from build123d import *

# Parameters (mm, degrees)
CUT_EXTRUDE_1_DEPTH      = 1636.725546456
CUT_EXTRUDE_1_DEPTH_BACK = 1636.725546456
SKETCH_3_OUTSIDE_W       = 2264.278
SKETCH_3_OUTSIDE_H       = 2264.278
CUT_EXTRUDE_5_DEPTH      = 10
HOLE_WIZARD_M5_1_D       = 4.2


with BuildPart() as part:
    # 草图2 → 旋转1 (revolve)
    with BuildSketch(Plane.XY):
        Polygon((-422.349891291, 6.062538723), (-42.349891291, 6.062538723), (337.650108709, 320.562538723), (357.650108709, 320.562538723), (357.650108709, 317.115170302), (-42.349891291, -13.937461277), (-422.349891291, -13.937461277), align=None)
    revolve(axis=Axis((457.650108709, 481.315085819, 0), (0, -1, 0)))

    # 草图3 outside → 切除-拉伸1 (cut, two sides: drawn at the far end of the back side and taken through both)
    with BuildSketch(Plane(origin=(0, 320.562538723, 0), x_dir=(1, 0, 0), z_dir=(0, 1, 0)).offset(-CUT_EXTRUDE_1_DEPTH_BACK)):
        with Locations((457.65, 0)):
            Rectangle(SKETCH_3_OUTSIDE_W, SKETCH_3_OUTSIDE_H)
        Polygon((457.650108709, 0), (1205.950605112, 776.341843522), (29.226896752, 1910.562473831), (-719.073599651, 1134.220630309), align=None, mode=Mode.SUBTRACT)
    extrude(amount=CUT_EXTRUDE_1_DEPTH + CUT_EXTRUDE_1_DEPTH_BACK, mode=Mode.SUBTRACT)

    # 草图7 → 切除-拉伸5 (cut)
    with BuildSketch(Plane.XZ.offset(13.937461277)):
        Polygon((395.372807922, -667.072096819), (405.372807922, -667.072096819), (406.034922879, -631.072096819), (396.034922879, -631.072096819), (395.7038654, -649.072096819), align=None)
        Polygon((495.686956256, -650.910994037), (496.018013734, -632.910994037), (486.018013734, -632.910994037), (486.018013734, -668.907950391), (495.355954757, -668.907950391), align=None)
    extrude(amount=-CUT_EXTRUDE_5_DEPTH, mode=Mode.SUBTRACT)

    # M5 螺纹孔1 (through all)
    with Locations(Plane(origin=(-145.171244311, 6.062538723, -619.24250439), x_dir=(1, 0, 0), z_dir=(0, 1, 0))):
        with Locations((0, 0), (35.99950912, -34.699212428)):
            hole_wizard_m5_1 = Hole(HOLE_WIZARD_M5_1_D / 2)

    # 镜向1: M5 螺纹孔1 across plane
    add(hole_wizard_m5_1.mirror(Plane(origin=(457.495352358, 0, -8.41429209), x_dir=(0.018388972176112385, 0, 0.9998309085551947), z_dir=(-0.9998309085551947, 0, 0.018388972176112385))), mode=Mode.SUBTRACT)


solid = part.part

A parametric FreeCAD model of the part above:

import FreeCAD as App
import Part
import Sketcher
from FreeCAD import Vector
Q = App.Units.Quantity


def add_polygon(sketch, points):
    """Adds a closed chain of lines whose ends are joined by coincident constraints."""
    first, n = sketch.GeometryCount, len(points)
    for a, b in zip(points, points[1:] + points[:1]):
        sketch.addGeometry(Part.LineSegment(App.Vector(*a, 0), App.Vector(*b, 0)), False)
    for i in range(n):
        sketch.addConstraint(Sketcher.Constraint("Coincident", first + i, 2, first + (i + 1) % n, 1))

doc = App.newDocument("Part")
params = doc.addObject("Spreadsheet::Sheet", "Params")
for row, (alias, value) in enumerate([
    ("sketch1_width", "380 mm"),
    ("sketch1_width2", "20 mm"),
    ("sketch1_height", "334.5 mm"),
    ("revolution_angle", "360 deg"),
    ("sketch3_width", "10 mm"),
    ("pocket2_length", "10 mm"),
    ("sketch4_diameter", "4.2 mm"),
    ("hole_diameter", "4.2 mm"),
], start=1):
    params.set(f"A{row}", alias)
    params.set(f"B{row}", "=" + value)
    params.setAlias(f"B{row}", alias)

body = doc.addObject("PartDesign::Body", "Body")

sketch1 = body.newObject("Sketcher::SketchObject", "Sketch")
sketch1.AttachmentSupport = (doc.getObject("XY_Plane"), [""])
sketch1.MapMode = "FlatFace"
add_polygon(sketch1, [(-42.3, 6.1), (-422.3, 6.1), (-422.3, -13.9), (-42.3, -13.9), (357.7, 317.1), (357.7, 320.6), (337.7, 320.6)])
sketch1.addGeometry(Part.LineSegment(Vector(457.7, 320.6, 0), Vector(457.7, -13.9, 0)), True)
sketch1.addConstraint([
    Sketcher.Constraint("Horizontal", 0),
    Sketcher.Constraint("Vertical", 1),
    Sketcher.Constraint("Horizontal", 2),
    Sketcher.Constraint("Vertical", 4),
    Sketcher.Constraint("Horizontal", 5),
    Sketcher.Constraint("Vertical", 7),
    Sketcher.Constraint("Parallel", 3, 6),
    Sketcher.Constraint("Horizontal", 5, 2, 7, 1),
    Sketcher.Constraint("Horizontal", 2, 2, 7, 2),
    Sketcher.Constraint("Vertical", 2, 2, 6, 2),
    Sketcher.Constraint("Equal", 5, 1),
    Sketcher.Constraint("DistanceX", 0, 2, 0, 1, Q("380 mm")),
    Sketcher.Constraint("DistanceX", 5, 2, 5, 1, Q("20 mm")),
    Sketcher.Constraint("DistanceY", 7, 2, 7, 1, Q("334.5 mm")),
    Sketcher.Constraint("DistanceX", 2, 2, 3, 2, Q("400 mm")),
    Sketcher.Constraint("DistanceX", 4, 2, 7, 1, Q("100 mm")),
    Sketcher.Constraint("DistanceX", 0, 2, -1, 1, Q("422.349891 mm")),
    Sketcher.Constraint("DistanceY", -1, 1, 0, 2, Q("6.062539 mm")),
])
sketch1.setExpression("Constraints[18]", "Params.sketch1_width")
sketch1.setExpression("Constraints[19]", "Params.sketch1_width2")
sketch1.setExpression("Constraints[20]", "Params.sketch1_height")
revolution = body.newObject("PartDesign::Revolution", "Revolution")
revolution.Profile = sketch1
revolution.ReferenceAxis = (sketch1, ["Axis0"])
revolution.setExpression("Angle", "Params.revolution_angle")

sketch2 = body.newObject("Sketcher::SketchObject", "Sketch001")
sketch2.AttachmentSupport = (doc.getObject("XZ_Plane"), [""])
sketch2.MapMode = "FlatFace"
sketch2.AttachmentOffset = App.Placement(Vector(0, 0, -320.562539), App.Rotation())
add_polygon(sketch2, [(-674, -1091), (-674, 1132), (1590, 1132), (1590, -1132), (837, -1132), (1206, -776), (458, 0)])
sketch2.addConstraint([
    Sketcher.Constraint("Vertical", 0),
    Sketcher.Constraint("Horizontal", 1),
    Sketcher.Constraint("Vertical", 2),
    Sketcher.Constraint("Horizontal", 3),
    Sketcher.Constraint("PointOnObject", 5, 2, -1),
    Sketcher.Constraint("Perpendicular", 4, 5),
    Sketcher.Constraint("Perpendicular", 5, 6),
    Sketcher.Constraint("Equal", 1, 2),
    Sketcher.Constraint("DistanceX", 1, 1, 1, 2, Q("2264.278 mm")),
    Sketcher.Constraint("DistanceX", 0, 2, -1, 1, Q("674.489 mm")),
    Sketcher.Constraint("DistanceY", -1, 1, 0, 2, Q("1132.139 mm")),
    Sketcher.Constraint("DistanceY", 0, 1, 0, 2, Q("2223.385419 mm")),
    Sketcher.Constraint("Distance", 6, Q("1572.43687 mm")),
    Sketcher.Constraint("DistanceX", 3, 2, 3, 1, Q("752.968473 mm")),
])
pocket1 = body.newObject("PartDesign::Pocket", "Pocket")
pocket1.Profile = sketch2
pocket1.Type = "ThroughAll"
pocket1.Midplane = True

sketch3 = body.newObject("Sketcher::SketchObject", "Sketch002")
sketch3.AttachmentSupport = (doc.getObject("XZ_Plane"), [""])
sketch3.MapMode = "FlatFace"
sketch3.AttachmentOffset = App.Placement(Vector(0, 0, 13.937461), App.Rotation())
add_polygon(sketch3, [(395, -667), (405, -667), (406, -631), (396, -631), (396, -649)])
add_polygon(sketch3, [(496, -633), (486, -633), (486, -669), (495, -669)])
sketch3.addConstraint([
    Sketcher.Constraint("Horizontal", 0),
    Sketcher.Constraint("Horizontal", 2),
    Sketcher.Constraint("Horizontal", 5),
    Sketcher.Constraint("Vertical", 6),
    Sketcher.Constraint("Horizontal", 7),
    Sketcher.Constraint("Parallel", 1, 3),
    Sketcher.Constraint("Parallel", 3, 4),
    Sketcher.Constraint("Parallel", 4, 8),
    Sketcher.Constraint("Equal", 2, 5),
    Sketcher.Constraint("Equal", 3, 4),
    Sketcher.Constraint("DistanceX", 0, 1, 0, 2, Q("10 mm")),
    Sketcher.Constraint("DistanceY", 0, 2, 1, 2, Q("36 mm")),
    Sketcher.Constraint("DistanceX", 7, 1, 7, 2, Q("9.337941 mm")),
    Sketcher.Constraint("DistanceY", 6, 2, 6, 1, Q("35.996956 mm")),
    Sketcher.Constraint("DistanceY", 6, 2, -1, 1, Q("668.90795 mm")),
    Sketcher.Constraint("DistanceX", 1, 2, 5, 2, Q("79.983091 mm")),
    Sketcher.Constraint("DistanceX", -1, 1, 0, 2, Q("405.372808 mm")),
    Sketcher.Constraint("DistanceY", 0, 2, -1, 1, Q("667.072097 mm")),
])
sketch3.setExpression("Constraints[19]", "Params.sketch3_width")
pocket2 = body.newObject("PartDesign::Pocket", "Pocket001")
pocket2.Profile = sketch3
pocket2.setExpression("Length", "Params.pocket2_length")

sketch4 = body.newObject("Sketcher::SketchObject", "Sketch003")
sketch4.AttachmentSupport = (doc.getObject("XZ_Plane"), [""])
sketch4.MapMode = "FlatFace"
sketch4.AttachmentOffset = App.Placement(Vector(0, 0, -6.062539), App.Rotation())
sketch4.addGeometry([
    Part.Circle(Vector(-145.2, -619.2, 0), Vector(0, 0, 1), 2.1),
    Part.Circle(Vector(-109.2, -584.5, 0), Vector(0, 0, 1), 2.1),
], False)
sketch4.addConstraint([
    Sketcher.Constraint("Equal", 0, 1),
    Sketcher.Constraint("Diameter", 0, Q("4.2 mm")),
    Sketcher.Constraint("DistanceY", 1, 3, -1, 1, Q("584.543292 mm")),
    Sketcher.Constraint("DistanceX", 0, 3, 1, 3, Q("35.999509 mm")),
    Sketcher.Constraint("DistanceX", 0, 3, -1, 1, Q("145.171244 mm")),
    Sketcher.Constraint("DistanceY", 0, 3, -1, 1, Q("619.242504 mm")),
])
sketch4.setExpression("Constraints[1]", "Params.sketch4_diameter")
doc.recompute()
hole = body.newObject("PartDesign::Hole", "Hole")
hole.Profile = sketch4
hole.ThreadType = "None"
hole.setExpression("Diameter", "Params.hole_diameter")
hole.DepthType = "ThroughAll"
hole.Reversed = True
doc.recompute()

datumplane = body.newObject("PartDesign::Plane", "DatumPlane")
datumplane.Placement = App.Placement(Vector(457.495353, 0, -8.414292), App.Rotation(Vector(-0.018388972, 0, -0.999830909), Vector(0, -1, 0), Vector(-0.999830909, 0, 0.018388972), "ZXY"))
mirrored = body.newObject("PartDesign::Mirrored", "Mirrored")
mirrored.Originals = [hole]
mirrored.MirrorPlane = (datumplane, [""])
body.Tip = mirrored

doc.recompute()
